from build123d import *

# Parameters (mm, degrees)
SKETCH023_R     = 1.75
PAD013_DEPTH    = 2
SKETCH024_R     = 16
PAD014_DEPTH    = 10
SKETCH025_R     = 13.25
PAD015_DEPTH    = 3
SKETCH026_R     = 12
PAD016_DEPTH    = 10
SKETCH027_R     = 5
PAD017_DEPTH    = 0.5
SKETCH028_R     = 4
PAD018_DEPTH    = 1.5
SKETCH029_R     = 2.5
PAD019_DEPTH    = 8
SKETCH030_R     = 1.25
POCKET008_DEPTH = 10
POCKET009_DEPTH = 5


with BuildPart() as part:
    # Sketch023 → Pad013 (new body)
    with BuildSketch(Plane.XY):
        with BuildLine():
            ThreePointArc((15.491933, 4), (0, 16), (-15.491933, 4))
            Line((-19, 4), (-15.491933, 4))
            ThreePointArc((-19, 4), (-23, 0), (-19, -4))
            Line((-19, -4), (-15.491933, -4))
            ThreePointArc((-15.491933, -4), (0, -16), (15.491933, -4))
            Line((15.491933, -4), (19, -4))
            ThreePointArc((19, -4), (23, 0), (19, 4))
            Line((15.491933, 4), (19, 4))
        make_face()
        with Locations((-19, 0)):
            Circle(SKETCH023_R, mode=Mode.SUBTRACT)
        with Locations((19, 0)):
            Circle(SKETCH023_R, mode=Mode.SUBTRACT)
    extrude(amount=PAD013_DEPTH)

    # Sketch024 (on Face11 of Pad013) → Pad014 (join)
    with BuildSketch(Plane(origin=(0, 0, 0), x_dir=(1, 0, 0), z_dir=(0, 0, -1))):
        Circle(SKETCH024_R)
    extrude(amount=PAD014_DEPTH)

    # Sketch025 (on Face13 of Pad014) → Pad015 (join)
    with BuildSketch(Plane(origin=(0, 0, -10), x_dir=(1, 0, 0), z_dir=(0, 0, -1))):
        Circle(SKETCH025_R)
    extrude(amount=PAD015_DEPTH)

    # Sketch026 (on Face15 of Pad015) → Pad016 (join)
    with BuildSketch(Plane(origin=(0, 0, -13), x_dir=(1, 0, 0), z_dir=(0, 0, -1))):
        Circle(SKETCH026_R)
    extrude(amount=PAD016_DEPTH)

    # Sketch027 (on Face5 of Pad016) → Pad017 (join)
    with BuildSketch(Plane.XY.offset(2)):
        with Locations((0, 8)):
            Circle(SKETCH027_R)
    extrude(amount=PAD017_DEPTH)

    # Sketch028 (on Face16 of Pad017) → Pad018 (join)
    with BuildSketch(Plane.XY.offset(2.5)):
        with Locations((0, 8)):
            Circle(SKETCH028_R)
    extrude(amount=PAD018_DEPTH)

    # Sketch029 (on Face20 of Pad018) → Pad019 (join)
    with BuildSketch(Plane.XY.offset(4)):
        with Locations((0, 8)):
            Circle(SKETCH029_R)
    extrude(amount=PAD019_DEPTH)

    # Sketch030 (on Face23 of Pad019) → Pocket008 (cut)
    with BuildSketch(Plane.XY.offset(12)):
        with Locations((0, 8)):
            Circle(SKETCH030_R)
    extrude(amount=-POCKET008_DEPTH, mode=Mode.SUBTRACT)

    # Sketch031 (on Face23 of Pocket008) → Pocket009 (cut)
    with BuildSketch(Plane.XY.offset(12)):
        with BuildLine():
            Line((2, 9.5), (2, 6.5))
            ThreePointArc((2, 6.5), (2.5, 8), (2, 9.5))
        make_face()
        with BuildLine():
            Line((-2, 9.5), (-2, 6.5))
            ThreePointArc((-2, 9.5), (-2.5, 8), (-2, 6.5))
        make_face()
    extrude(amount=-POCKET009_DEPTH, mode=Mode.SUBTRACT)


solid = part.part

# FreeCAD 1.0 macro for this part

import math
import FreeCAD as App
import Part
import Sketcher

doc = App.newDocument("Part")
body = doc.addObject("PartDesign::Body", "Body")

sketch1 = doc.addObject("Sketcher::SketchObject", "Sketch")
body.addObject(sketch1)
sketch1.AttachmentSupport = (doc.XY_Plane, [""])
sketch1.MapMode = "FlatFace"
sketch1.addGeometry(Part.ArcOfCircle(Part.Circle(App.Vector(0, 0, 0), App.Vector(0, 0, 1), 16), math.radians(14), math.radians(166)), False)
sketch1.addGeometry(Part.LineSegment(App.Vector(-15.5, 4, 0), App.Vector(-19, 4, 0)), False)
sketch1.addGeometry(Part.ArcOfCircle(Part.Circle(App.Vector(-19, 0, 0), App.Vector(0, 0, 1), 4), math.radians(90), math.radians(270)), False)
sketch1.addGeometry(Part.LineSegment(App.Vector(-19, -4, 0), App.Vector(-15.5, -4, 0)), False)
sketch1.addGeometry(Part.ArcOfCircle(Part.Circle(App.Vector(0, 0, 0), App.Vector(0, 0, 1), 16), math.radians(-166), math.radians(-14)), False)
sketch1.addGeometry(Part.LineSegment(App.Vector(15.5, -4, 0), App.Vector(19, -4, 0)), False)
sketch1.addGeometry(Part.ArcOfCircle(Part.Circle(App.Vector(19, 0, 0), App.Vector(0, 0, 1), 4), math.radians(-90), math.radians(90)), False)
sketch1.addGeometry(Part.LineSegment(App.Vector(19, 4, 0), App.Vector(15.5, 4, 0)), False)
sketch1.addGeometry(Part.Circle(App.Vector(-19, 0, 0), App.Vector(0, 0, 1), 1.8), False)
sketch1.addGeometry(Part.Circle(App.Vector(19, 0, 0), App.Vector(0, 0, 1), 1.8), False)
sketch1.addConstraint(Sketcher.Constraint("Coincident", 0, 2, 1, 1))
sketch1.addConstraint(Sketcher.Constraint("Tangent", 1, 2, 2, 1))
sketch1.addConstraint(Sketcher.Constraint("Tangent", 2, 2, 3, 1))
sketch1.addConstraint(Sketcher.Constraint("Coincident", 3, 2, 4, 1))
sketch1.addConstraint(Sketcher.Constraint("Coincident", 4, 2, 5, 1))
sketch1.addConstraint(Sketcher.Constraint("Tangent", 5, 2, 6, 1))
sketch1.addConstraint(Sketcher.Constraint("Tangent", 6, 2, 7, 1))
sketch1.addConstraint(Sketcher.Constraint("Coincident", 7, 2, 0, 1))
sketch1.addConstraint(Sketcher.Constraint("Horizontal", 1))
sketch1.addConstraint(Sketcher.Constraint("Horizontal", 3))
sketch1.addConstraint(Sketcher.Constraint("Horizontal", 5))
sketch1.addConstraint(Sketcher.Constraint("Horizontal", 7))
sketch1.addConstraint(Sketcher.Constraint("Coincident", 0, 3, -1, 1))
sketch1.addConstraint(Sketcher.Constraint("Coincident", 4, 3, -1, 1))
sketch1.addConstraint(Sketcher.Constraint("Coincident", 8, 3, 2, 3))
sketch1.addConstraint(Sketcher.Constraint("Coincident", 9, 3, 6, 3))
sketch1.addConstraint(Sketcher.Constraint("Equal", 0, 4))
sketch1.addConstraint(Sketcher.Constraint("Equal", 2, 6))
sketch1.addConstraint(Sketcher.Constraint("Equal", 8, 9))
sketch1.addConstraint(Sketcher.Constraint("Symmetric", 2, 3, 6, 3, -1, 1))
sketch1.addConstraint(Sketcher.Constraint("PointOnObject", 2, 3, -1))
sketch1.addConstraint(Sketcher.Constraint("Radius", 0, 16.0))
sketch1.addConstraint(Sketcher.Constraint("Radius", 2, 4.0))
sketch1.addConstraint(Sketcher.Constraint("Diameter", 8, 3.5))
sketch1.addConstraint(Sketcher.Constraint("DistanceX", 2, 3, -1, 1, 19.0))
pad1 = doc.addObject("PartDesign::Pad", "Pad")
body.addObject(pad1)
pad1.Profile = sketch1
pad1.Length = 2

sketch2 = doc.addObject("Sketcher::SketchObject", "Sketch001")
body.addObject(sketch2)
sketch2.AttachmentSupport = (doc.XY_Plane, [""])
sketch2.MapMode = "FlatFace"
sketch2.addGeometry(Part.Circle(App.Vector(0, 0, 0), App.Vector(0, 0, 1), 16), False)
sketch2.addConstraint(Sketcher.Constraint("Coincident", 0, 3, -1, 1))
sketch2.addConstraint(Sketcher.Constraint("Diameter", 0, 32.0))
pad2 = doc.addObject("PartDesign::Pad", "Pad001")
body.addObject(pad2)
pad2.Profile = sketch2
pad2.Length = 10
pad2.Reversed = True

sketch3 = doc.addObject("Sketcher::SketchObject", "Sketch002")
body.addObject(sketch3)
sketch3.AttachmentSupport = (doc.XY_Plane, [""])
sketch3.MapMode = "FlatFace"
sketch3.AttachmentOffset = App.Placement(App.Vector(0, 0, -10), App.Rotation())
sketch3.addGeometry(Part.Circle(App.Vector(0, 0, 0), App.Vector(0, 0, 1), 13), False)
sketch3.addConstraint(Sketcher.Constraint("Coincident", 0, 3, -1, 1))
sketch3.addConstraint(Sketcher.Constraint("Diameter", 0, 26.5))
pad3 = doc.addObject("PartDesign::Pad", "Pad002")
body.addObject(pad3)
pad3.Profile = sketch3
pad3.Length = 3
pad3.Reversed = True

sketch4 = doc.addObject("Sketcher::SketchObject", "Sketch003")
body.addObject(sketch4)
sketch4.AttachmentSupport = (doc.XY_Plane, [""])
sketch4.MapMode = "FlatFace"
sketch4.AttachmentOffset = App.Placement(App.Vector(0, 0, -13), App.Rotation())
sketch4.addGeometry(Part.Circle(App.Vector(0, 0, 0), App.Vector(0, 0, 1), 12), False)
sketch4.addConstraint(Sketcher.Constraint("Coincident", 0, 3, -1, 1))
sketch4.addConstraint(Sketcher.Constraint("Diameter", 0, 24.0))
pad4 = doc.addObject("PartDesign::Pad", "Pad003")
body.addObject(pad4)
pad4.Profile = sketch4
pad4.Length = 10
pad4.Reversed = True

sketch5 = doc.addObject("Sketcher::SketchObject", "Sketch004")
body.addObject(sketch5)
sketch5.AttachmentSupport = (doc.XY_Plane, [""])
sketch5.MapMode = "FlatFace"
sketch5.AttachmentOffset = App.Placement(App.Vector(0, 0, 2), App.Rotation())
sketch5.addGeometry(Part.Circle(App.Vector(0, 8, 0), App.Vector(0, 0, 1), 5), False)
sketch5.addConstraint(Sketcher.Constraint("PointOnObject", 0, 3, -2))
sketch5.addConstraint(Sketcher.Constraint("Diameter", 0, 10.0))
sketch5.addConstraint(Sketcher.Constraint("DistanceY", -1, 1, 0, 3, 8.0))
pad5 = doc.addObject("PartDesign::Pad", "Pad004")
body.addObject(pad5)
pad5.Profile = sketch5
pad5.Length = 0.5

sketch6 = doc.addObject("Sketcher::SketchObject", "Sketch005")
body.addObject(sketch6)
sketch6.AttachmentSupport = (doc.XY_Plane, [""])
sketch6.MapMode = "FlatFace"
sketch6.AttachmentOffset = App.Placement(App.Vector(0, 0, 2.5), App.Rotation())
sketch6.addGeometry(Part.Circle(App.Vector(0, 8, 0), App.Vector(0, 0, 1), 4), False)
sketch6.addConstraint(Sketcher.Constraint("PointOnObject", 0, 3, -2))
sketch6.addConstraint(Sketcher.Constraint("Diameter", 0, 8.0))
sketch6.addConstraint(Sketcher.Constraint("DistanceY", -1, 1, 0, 3, 8.0))
pad6 = doc.addObject("PartDesign::Pad", "Pad005")
body.addObject(pad6)
pad6.Profile = sketch6
pad6.Length = 1.5

sketch7 = doc.addObject("Sketcher::SketchObject", "Sketch006")
body.addObject(sketch7)
sketch7.AttachmentSupport = (doc.XY_Plane, [""])
sketch7.MapMode = "FlatFace"
sketch7.AttachmentOffset = App.Placement(App.Vector(0, 0, 4), App.Rotation())
sketch7.addGeometry(Part.Circle(App.Vector(0, 8, 0), App.Vector(0, 0, 1), 2.5), False)
sketch7.addConstraint(Sketcher.Constraint("PointOnObject", 0, 3, -2))
sketch7.addConstraint(Sketcher.Constraint("Diameter", 0, 5.0))
sketch7.addConstraint(Sketcher.Constraint("DistanceY", -1, 1, 0, 3, 8.0))
pad7 = doc.addObject("PartDesign::Pad", "Pad006")
body.addObject(pad7)
pad7.Profile = sketch7
pad7.Length = 8

sketch8 = doc.addObject("Sketcher::SketchObject", "Sketch007")
body.addObject(sketch8)
sketch8.AttachmentSupport = (doc.XY_Plane, [""])
sketch8.MapMode = "FlatFace"
sketch8.AttachmentOffset = App.Placement(App.Vector(0, 0, 12), App.Rotation())
sketch8.addGeometry(Part.Circle(App.Vector(0, 8, 0), App.Vector(0, 0, 1), 1.2), False)
sketch8.addConstraint(Sketcher.Constraint("PointOnObject", 0, 3, -2))
sketch8.addConstraint(Sketcher.Constraint("Diameter", 0, 2.5))
sketch8.addConstraint(Sketcher.Constraint("DistanceY", -1, 1, 0, 3, 8.0))
pocket1 = doc.addObject("PartDesign::Pocket", "Pocket")
body.addObject(pocket1)
pocket1.Profile = sketch8
pocket1.Length = 10

sketch9 = doc.addObject("Sketcher::SketchObject", "Sketch008")
body.addObject(sketch9)
sketch9.AttachmentSupport = (doc.XY_Plane, [""])
sketch9.MapMode = "FlatFace"
sketch9.AttachmentOffset = App.Placement(App.Vector(0, 0, 12), App.Rotation())
sketch9.addGeometry(Part.LineSegment(App.Vector(2, 9.5, 0), App.Vector(2, 6.5, 0)), False)
sketch9.addGeometry(Part.ArcOfCircle(Part.Circle(App.Vector(0, 8, 0), App.Vector(0, 0, 1), 2.5), math.radians(-37), math.radians(37)), False)
sketch9.addGeometry(Part.LineSegment(App.Vector(-2, 6.5, 0), App.Vector(-2, 9.5, 0)), False)
sketch9.addGeometry(Part.ArcOfCircle(Part.Circle(App.Vector(0, 8, 0), App.Vector(0, 0, 1), 2.5), math.radians(143), math.radians(217)), False)
sketch9.addConstraint(Sketcher.Constraint("Coincident", 0, 1, 1, 2))
sketch9.addConstraint(Sketcher.Constraint("Coincident", 1, 1, 0, 2))
sketch9.addConstraint(Sketcher.Constraint("Coincident", 2, 1, 3, 2))
sketch9.addConstraint(Sketcher.Constraint("Coincident", 3, 1, 2, 2))
sketch9.addConstraint(Sketcher.Constraint("Vertical", 0))
sketch9.addConstraint(Sketcher.Constraint("Vertical", 2))
sketch9.addConstraint(Sketcher.Constraint("Coincident", 3, 3, 1, 3))
sketch9.addConstraint(Sketcher.Constraint("Equal", 1, 3))
sketch9.addConstraint(Sketcher.Constraint("Symmetric", 1, 1, 2, 1, -2))
sketch9.addConstraint(Sketcher.Constraint("Radius", 1, 2.5))
sketch9.addConstraint(Sketcher.Constraint("DistanceY", 0, 2, 0, 1, 3.0))
sketch9.addConstraint(Sketcher.Constraint("DistanceY", -1, 1, 1, 3, 8.0))
pocket2 = doc.addObject("PartDesign::Pocket", "Pocket001")
body.addObject(pocket2)
pocket2.Profile = sketch9
pocket2.Length = 5

doc.recompute()
